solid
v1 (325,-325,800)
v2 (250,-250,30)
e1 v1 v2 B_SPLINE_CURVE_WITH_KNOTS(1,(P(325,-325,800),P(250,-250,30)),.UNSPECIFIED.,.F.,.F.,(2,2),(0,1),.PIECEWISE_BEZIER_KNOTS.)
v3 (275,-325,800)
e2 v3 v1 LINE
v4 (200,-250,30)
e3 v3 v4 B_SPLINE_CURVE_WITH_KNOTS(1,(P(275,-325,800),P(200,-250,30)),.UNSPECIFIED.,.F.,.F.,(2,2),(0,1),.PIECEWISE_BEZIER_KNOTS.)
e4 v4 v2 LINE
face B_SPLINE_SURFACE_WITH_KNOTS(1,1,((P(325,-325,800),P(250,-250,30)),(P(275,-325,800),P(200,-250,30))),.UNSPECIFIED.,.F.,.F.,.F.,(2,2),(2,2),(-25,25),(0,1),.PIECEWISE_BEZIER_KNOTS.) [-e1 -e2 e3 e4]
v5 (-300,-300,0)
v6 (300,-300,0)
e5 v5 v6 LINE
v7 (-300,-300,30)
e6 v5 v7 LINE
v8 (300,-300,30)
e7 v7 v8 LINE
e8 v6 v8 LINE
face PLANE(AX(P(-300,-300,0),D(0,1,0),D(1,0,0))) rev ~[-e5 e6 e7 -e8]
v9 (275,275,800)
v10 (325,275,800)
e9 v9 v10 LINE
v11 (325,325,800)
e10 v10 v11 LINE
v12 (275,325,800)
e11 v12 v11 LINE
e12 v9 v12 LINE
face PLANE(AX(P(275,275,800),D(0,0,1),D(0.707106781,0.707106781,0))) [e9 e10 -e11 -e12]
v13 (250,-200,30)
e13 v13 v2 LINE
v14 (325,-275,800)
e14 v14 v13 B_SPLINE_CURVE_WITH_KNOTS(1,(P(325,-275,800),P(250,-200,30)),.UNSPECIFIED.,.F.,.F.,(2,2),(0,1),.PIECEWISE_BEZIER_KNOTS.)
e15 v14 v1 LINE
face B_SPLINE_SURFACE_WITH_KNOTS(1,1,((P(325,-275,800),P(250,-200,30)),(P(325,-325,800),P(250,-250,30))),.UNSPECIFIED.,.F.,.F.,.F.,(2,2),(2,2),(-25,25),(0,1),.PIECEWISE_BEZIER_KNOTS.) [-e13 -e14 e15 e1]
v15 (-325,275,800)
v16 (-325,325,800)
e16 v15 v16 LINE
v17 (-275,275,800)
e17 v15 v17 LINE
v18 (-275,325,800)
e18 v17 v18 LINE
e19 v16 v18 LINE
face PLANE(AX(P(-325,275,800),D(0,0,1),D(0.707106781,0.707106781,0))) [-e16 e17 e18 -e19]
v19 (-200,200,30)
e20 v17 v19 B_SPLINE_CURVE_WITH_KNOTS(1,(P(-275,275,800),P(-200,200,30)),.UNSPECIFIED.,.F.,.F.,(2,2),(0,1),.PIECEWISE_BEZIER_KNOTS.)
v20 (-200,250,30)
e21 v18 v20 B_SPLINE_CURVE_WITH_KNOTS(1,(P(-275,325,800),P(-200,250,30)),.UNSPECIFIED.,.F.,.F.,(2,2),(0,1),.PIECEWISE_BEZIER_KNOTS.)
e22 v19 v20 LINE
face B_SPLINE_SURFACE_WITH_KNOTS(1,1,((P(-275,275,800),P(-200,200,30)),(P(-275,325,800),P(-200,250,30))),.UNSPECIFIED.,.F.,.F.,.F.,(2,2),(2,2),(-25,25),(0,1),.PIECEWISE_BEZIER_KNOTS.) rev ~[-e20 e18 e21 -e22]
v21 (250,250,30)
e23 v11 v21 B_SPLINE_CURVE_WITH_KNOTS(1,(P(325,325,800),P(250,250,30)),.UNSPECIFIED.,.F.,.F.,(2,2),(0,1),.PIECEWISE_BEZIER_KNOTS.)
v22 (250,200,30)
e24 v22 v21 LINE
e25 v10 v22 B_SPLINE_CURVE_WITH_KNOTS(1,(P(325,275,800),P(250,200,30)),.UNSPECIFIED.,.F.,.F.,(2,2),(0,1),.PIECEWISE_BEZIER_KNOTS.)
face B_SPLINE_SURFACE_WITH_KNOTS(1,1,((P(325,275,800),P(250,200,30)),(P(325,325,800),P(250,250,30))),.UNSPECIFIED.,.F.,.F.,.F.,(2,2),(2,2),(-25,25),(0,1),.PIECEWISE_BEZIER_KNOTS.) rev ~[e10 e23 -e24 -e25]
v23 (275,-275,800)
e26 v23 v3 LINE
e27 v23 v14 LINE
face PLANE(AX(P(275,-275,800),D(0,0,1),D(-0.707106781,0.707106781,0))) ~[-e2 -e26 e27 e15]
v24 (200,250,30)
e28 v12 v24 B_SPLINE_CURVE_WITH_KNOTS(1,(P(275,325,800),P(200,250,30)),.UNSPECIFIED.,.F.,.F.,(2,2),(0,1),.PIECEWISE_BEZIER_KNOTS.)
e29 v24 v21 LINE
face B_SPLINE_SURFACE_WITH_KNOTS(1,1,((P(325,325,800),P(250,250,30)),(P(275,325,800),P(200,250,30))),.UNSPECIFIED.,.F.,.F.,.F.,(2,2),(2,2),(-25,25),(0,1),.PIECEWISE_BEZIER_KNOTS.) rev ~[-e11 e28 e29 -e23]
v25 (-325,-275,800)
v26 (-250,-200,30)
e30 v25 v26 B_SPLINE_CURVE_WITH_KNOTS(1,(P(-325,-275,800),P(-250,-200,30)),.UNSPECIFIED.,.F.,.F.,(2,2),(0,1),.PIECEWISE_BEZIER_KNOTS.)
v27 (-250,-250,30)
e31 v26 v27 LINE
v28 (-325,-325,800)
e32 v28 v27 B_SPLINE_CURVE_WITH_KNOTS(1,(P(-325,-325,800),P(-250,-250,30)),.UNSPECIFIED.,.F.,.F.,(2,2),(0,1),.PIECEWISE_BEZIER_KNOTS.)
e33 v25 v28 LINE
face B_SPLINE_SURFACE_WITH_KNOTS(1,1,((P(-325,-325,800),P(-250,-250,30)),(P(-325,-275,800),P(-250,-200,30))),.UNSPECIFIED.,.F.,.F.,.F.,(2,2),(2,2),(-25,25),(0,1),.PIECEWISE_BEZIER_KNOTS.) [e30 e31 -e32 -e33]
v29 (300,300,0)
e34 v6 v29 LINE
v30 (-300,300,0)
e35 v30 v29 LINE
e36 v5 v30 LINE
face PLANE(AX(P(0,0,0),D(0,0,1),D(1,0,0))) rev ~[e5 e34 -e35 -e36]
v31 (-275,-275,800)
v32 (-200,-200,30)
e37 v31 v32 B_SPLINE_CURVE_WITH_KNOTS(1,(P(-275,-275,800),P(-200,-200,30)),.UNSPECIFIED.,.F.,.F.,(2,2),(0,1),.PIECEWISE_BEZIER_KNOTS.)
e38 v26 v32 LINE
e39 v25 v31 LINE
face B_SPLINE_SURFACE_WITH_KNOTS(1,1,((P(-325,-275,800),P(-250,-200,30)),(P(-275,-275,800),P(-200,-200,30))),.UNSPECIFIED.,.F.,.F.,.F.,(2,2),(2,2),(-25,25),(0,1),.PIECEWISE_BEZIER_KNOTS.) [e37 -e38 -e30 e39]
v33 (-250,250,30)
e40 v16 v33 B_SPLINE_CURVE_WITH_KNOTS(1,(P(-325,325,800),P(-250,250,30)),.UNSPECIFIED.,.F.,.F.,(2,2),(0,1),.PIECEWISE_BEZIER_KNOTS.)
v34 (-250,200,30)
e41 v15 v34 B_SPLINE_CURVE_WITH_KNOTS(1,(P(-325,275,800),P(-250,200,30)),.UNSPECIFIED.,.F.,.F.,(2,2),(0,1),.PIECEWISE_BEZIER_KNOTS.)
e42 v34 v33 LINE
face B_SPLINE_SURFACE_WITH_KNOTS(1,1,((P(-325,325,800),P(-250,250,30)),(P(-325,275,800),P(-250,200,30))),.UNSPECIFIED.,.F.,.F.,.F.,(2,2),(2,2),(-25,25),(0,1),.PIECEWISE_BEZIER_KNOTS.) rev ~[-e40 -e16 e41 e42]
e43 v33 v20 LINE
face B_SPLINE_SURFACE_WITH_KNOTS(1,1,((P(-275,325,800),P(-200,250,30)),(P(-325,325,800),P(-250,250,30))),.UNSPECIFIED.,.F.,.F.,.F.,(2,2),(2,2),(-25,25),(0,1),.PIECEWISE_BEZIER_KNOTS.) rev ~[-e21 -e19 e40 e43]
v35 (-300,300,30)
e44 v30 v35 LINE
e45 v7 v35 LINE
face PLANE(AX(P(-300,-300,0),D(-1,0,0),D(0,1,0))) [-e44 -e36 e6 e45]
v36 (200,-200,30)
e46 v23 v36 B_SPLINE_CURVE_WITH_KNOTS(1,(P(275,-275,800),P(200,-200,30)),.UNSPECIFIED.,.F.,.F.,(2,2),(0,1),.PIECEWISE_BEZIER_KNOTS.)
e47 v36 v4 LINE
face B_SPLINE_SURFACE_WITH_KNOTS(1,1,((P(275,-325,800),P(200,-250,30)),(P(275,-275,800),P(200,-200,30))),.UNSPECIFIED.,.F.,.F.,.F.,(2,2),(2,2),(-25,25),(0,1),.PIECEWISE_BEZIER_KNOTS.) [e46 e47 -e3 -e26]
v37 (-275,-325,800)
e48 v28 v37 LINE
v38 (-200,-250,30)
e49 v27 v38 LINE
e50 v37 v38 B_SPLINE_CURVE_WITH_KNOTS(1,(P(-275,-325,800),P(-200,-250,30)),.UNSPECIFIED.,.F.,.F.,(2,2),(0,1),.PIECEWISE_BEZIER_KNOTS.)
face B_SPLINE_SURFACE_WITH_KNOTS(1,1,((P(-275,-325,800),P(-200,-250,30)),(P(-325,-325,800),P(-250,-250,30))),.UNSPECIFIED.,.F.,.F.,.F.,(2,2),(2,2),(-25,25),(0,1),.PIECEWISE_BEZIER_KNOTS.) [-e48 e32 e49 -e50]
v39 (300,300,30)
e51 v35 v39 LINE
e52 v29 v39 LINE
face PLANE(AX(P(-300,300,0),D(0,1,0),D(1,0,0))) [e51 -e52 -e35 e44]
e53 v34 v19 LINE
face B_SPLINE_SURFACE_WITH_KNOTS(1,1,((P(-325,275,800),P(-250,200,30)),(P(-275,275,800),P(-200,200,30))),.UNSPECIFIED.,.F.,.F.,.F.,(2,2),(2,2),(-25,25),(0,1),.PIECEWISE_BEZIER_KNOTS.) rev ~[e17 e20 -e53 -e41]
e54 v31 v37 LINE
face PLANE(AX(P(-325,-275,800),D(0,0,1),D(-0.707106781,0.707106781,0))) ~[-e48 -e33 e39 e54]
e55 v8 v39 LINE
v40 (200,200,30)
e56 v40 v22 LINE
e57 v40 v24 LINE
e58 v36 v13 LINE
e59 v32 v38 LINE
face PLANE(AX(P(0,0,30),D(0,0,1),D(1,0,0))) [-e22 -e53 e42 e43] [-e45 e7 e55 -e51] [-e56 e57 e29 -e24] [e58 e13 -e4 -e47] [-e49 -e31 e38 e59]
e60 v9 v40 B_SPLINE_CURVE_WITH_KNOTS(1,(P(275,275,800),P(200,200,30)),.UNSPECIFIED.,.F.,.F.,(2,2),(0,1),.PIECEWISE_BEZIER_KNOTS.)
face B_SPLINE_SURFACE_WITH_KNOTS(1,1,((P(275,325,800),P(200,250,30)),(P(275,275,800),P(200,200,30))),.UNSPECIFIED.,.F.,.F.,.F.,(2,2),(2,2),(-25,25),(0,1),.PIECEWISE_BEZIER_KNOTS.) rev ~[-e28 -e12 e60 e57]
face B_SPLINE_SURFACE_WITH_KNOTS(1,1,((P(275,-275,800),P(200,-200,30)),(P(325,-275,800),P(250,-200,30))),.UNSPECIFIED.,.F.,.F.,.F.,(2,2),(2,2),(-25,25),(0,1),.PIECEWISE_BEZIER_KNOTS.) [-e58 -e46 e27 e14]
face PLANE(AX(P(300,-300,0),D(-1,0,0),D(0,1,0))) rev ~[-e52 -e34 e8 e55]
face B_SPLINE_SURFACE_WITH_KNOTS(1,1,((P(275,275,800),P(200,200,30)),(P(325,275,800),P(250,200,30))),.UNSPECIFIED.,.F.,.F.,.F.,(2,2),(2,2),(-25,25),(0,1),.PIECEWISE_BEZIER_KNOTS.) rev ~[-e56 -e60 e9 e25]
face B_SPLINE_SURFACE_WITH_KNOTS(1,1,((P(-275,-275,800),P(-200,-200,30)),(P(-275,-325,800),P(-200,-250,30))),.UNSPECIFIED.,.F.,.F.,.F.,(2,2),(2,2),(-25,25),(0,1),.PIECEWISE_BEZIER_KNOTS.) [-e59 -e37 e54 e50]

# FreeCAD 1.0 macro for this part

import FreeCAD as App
import Part
import Sketcher

V = App.Vector
Q = App.Units.Quantity

doc = App.newDocument("Part")
body = doc.addObject("PartDesign::Body", "Body")

# Sketch on XY plane
sketch1 = body.newObject("Sketcher::SketchObject", "Sketch")
sketch1.AttachmentSupport = (doc.getObject("XY_Plane"), [""])
sketch1.MapMode = "FlatFace"
sketch1.addGeometry(Part.LineSegment(V(-300, 300, 0), V(-300, -300, 0)), False)
sketch1.addGeometry(Part.LineSegment(V(-300, -300, 0), V(300, -300, 0)), False)
sketch1.addGeometry(Part.LineSegment(V(300, -300, 0), V(300, 300, 0)), False)
sketch1.addGeometry(Part.LineSegment(V(300, 300, 0), V(-300, 300, 0)), False)
sketch1.addConstraint(Sketcher.Constraint("Coincident", 0, 2, 1, 1))
sketch1.addConstraint(Sketcher.Constraint("Coincident", 1, 2, 2, 1))
sketch1.addConstraint(Sketcher.Constraint("Coincident", 2, 2, 3, 1))
sketch1.addConstraint(Sketcher.Constraint("Coincident", 3, 2, 0, 1))
sketch1.addConstraint(Sketcher.Constraint("Vertical", 0))
sketch1.addConstraint(Sketcher.Constraint("Horizontal", 1))
sketch1.addConstraint(Sketcher.Constraint("Vertical", 2))
sketch1.addConstraint(Sketcher.Constraint("Horizontal", 3))
sketch1.addConstraint(Sketcher.Constraint("Symmetric", 0, 2, 2, 2, -1, 1))
sketch1.addConstraint(Sketcher.Constraint("Equal", 3, 0))
sketch1.addConstraint(Sketcher.Constraint("DistanceX", 1, 1, 1, 2, Q("600 mm")))
pad1 = body.newObject("PartDesign::Pad", "Pad")
pad1.Profile = sketch1
pad1.Length = 30

# Sketch on XY plane
sketch2 = body.newObject("Sketcher::SketchObject", "Sketch001")
sketch2.AttachmentSupport = (doc.getObject("XY_Plane"), [""])
sketch2.MapMode = "FlatFace"
sketch2.AttachmentOffset = App.Placement(V(0, 0, 800), App.Rotation())
sketch2.addGeometry(Part.LineSegment(V(-325, 325, 0), V(-325, 275, 0)), False)
sketch2.addGeometry(Part.LineSegment(V(-325, 275, 0), V(-275, 275, 0)), False)
sketch2.addGeometry(Part.LineSegment(V(-275, 275, 0), V(-275, 325, 0)), False)
sketch2.addGeometry(Part.LineSegment(V(-275, 325, 0), V(-325, 325, 0)), False)
sketch2.addConstraint(Sketcher.Constraint("Coincident", 0, 2, 1, 1))
sketch2.addConstraint(Sketcher.Constraint("Coincident", 1, 2, 2, 1))
sketch2.addConstraint(Sketcher.Constraint("Coincident", 2, 2, 3, 1))
sketch2.addConstraint(Sketcher.Constraint("Coincident", 3, 2, 0, 1))
sketch2.addConstraint(Sketcher.Constraint("Vertical", 0))
sketch2.addConstraint(Sketcher.Constraint("Horizontal", 1))
sketch2.addConstraint(Sketcher.Constraint("Vertical", 2))
sketch2.addConstraint(Sketcher.Constraint("Horizontal", 3))
sketch2.addConstraint(Sketcher.Constraint("Equal", 3, 0))
sketch2.addConstraint(Sketcher.Constraint("DistanceX", 1, 1, 1, 2, Q("50 mm")))
sketch2.addConstraint(Sketcher.Constraint("DistanceX", 0, 2, -1, 1, Q("325 mm")))
sketch2.addConstraint(Sketcher.Constraint("DistanceY", -1, 1, 0, 2, Q("275 mm")))

# Sketch on XY plane
sketch3 = body.newObject("Sketcher::SketchObject", "Sketch002")
sketch3.AttachmentSupport = (doc.getObject("XY_Plane"), [""])
sketch3.MapMode = "FlatFace"
sketch3.AttachmentOffset = App.Placement(V(0, 0, 30), App.Rotation())
sketch3.addGeometry(Part.LineSegment(V(-250, 250, 0), V(-250, 200, 0)), False)
sketch3.addGeometry(Part.LineSegment(V(-250, 200, 0), V(-200, 200, 0)), False)
sketch3.addGeometry(Part.LineSegment(V(-200, 200, 0), V(-200, 250, 0)), False)
sketch3.addGeometry(Part.LineSegment(V(-200, 250, 0), V(-250, 250, 0)), False)
sketch3.addConstraint(Sketcher.Constraint("Coincident", 0, 2, 1, 1))
sketch3.addConstraint(Sketcher.Constraint("Coincident", 1, 2, 2, 1))
sketch3.addConstraint(Sketcher.Constraint("Coincident", 2, 2, 3, 1))
sketch3.addConstraint(Sketcher.Constraint("Coincident", 3, 2, 0, 1))
sketch3.addConstraint(Sketcher.Constraint("Vertical", 0))
sketch3.addConstraint(Sketcher.Constraint("Horizontal", 1))
sketch3.addConstraint(Sketcher.Constraint("Vertical", 2))
sketch3.addConstraint(Sketcher.Constraint("Horizontal", 3))
sketch3.addConstraint(Sketcher.Constraint("Equal", 3, 0))
sketch3.addConstraint(Sketcher.Constraint("DistanceX", 1, 1, 1, 2, Q("50 mm")))
sketch3.addConstraint(Sketcher.Constraint("DistanceX", 0, 2, -1, 1, Q("250 mm")))
sketch3.addConstraint(Sketcher.Constraint("DistanceY", -1, 1, 0, 2, Q("200 mm")))

additiveloft = body.newObject("PartDesign::AdditiveLoft", "AdditiveLoft")
additiveloft.Profile = sketch2
additiveloft.Sections = [sketch3]

# Sketch on XY plane
sketch4 = body.newObject("Sketcher::SketchObject", "Sketch003")
sketch4.AttachmentSupport = (doc.getObject("XY_Plane"), [""])
sketch4.MapMode = "FlatFace"
sketch4.AttachmentOffset = App.Placement(V(0, 0, 800), App.Rotation())
sketch4.addGeometry(Part.LineSegment(V(275, 325, 0), V(275, 275, 0)), False)
sketch4.addGeometry(Part.LineSegment(V(275, 275, 0), V(325, 275, 0)), False)
sketch4.addGeometry(Part.LineSegment(V(325, 275, 0), V(325, 325, 0)), False)
sketch4.addGeometry(Part.LineSegment(V(325, 325, 0), V(275, 325, 0)), False)
sketch4.addConstraint(Sketcher.Constraint("Coincident", 0, 2, 1, 1))
sketch4.addConstraint(Sketcher.Constraint("Coincident", 1, 2, 2, 1))
sketch4.addConstraint(Sketcher.Constraint("Coincident", 2, 2, 3, 1))
sketch4.addConstraint(Sketcher.Constraint("Coincident", 3, 2, 0, 1))
sketch4.addConstraint(Sketcher.Constraint("Vertical", 0))
sketch4.addConstraint(Sketcher.Constraint("Horizontal", 1))
sketch4.addConstraint(Sketcher.Constraint("Vertical", 2))
sketch4.addConstraint(Sketcher.Constraint("Horizontal", 3))
sketch4.addConstraint(Sketcher.Constraint("Equal", 3, 0))
sketch4.addConstraint(Sketcher.Constraint("DistanceX", 1, 1, 1, 2, Q("50 mm")))
sketch4.addConstraint(Sketcher.Constraint("DistanceX", -1, 1, 0, 2, Q("275 mm")))
sketch4.addConstraint(Sketcher.Constraint("DistanceY", -1, 1, 0, 2, Q("275 mm")))

# Sketch on XY plane
sketch5 = body.newObject("Sketcher::SketchObject", "Sketch004")
sketch5.AttachmentSupport = (doc.getObject("XY_Plane"), [""])
sketch5.MapMode = "FlatFace"
sketch5.AttachmentOffset = App.Placement(V(0, 0, 30), App.Rotation())
sketch5.addGeometry(Part.LineSegment(V(200, 250, 0), V(200, 200, 0)), False)
sketch5.addGeometry(Part.LineSegment(V(200, 200, 0), V(250, 200, 0)), False)
sketch5.addGeometry(Part.LineSegment(V(250, 200, 0), V(250, 250, 0)), False)
sketch5.addGeometry(Part.LineSegment(V(250, 250, 0), V(200, 250, 0)), False)
sketch5.addConstraint(Sketcher.Constraint("Coincident", 0, 2, 1, 1))
sketch5.addConstraint(Sketcher.Constraint("Coincident", 1, 2, 2, 1))
sketch5.addConstraint(Sketcher.Constraint("Coincident", 2, 2, 3, 1))
sketch5.addConstraint(Sketcher.Constraint("Coincident", 3, 2, 0, 1))
sketch5.addConstraint(Sketcher.Constraint("Vertical", 0))
sketch5.addConstraint(Sketcher.Constraint("Horizontal", 1))
sketch5.addConstraint(Sketcher.Constraint("Vertical", 2))
sketch5.addConstraint(Sketcher.Constraint("Horizontal", 3))
sketch5.addConstraint(Sketcher.Constraint("Equal", 3, 0))
sketch5.addConstraint(Sketcher.Constraint("DistanceX", 1, 1, 1, 2, Q("50 mm")))
sketch5.addConstraint(Sketcher.Constraint("DistanceX", -1, 1, 0, 2, Q("200 mm")))
sketch5.addConstraint(Sketcher.Constraint("DistanceY", -1, 1, 0, 2, Q("200 mm")))

additiveloft2 = body.newObject("PartDesign::AdditiveLoft", "AdditiveLoft001")
additiveloft2.Profile = sketch4
additiveloft2.Sections = [sketch5]
body2 = doc.addObject("PartDesign::Body", "Body001")
doc.recompute()

body2.BaseFeature = body
doc.recompute()

mirroring = doc.addObject("Part::Mirroring", "Mirroring")
mirroring.Source = body
mirroring.Base = V(0, 0, 0)
mirroring.Normal = V(0, -1, 0)
body3 = doc.addObject("PartDesign::Body", "Body002")
body3.BaseFeature = mirroring
boolean = body2.newObject("PartDesign::Boolean", "Boolean")
boolean.Type = "Fuse"
boolean.addObjects([body3])
doc.recompute()
mirroring.Visibility = False

doc.recompute()
